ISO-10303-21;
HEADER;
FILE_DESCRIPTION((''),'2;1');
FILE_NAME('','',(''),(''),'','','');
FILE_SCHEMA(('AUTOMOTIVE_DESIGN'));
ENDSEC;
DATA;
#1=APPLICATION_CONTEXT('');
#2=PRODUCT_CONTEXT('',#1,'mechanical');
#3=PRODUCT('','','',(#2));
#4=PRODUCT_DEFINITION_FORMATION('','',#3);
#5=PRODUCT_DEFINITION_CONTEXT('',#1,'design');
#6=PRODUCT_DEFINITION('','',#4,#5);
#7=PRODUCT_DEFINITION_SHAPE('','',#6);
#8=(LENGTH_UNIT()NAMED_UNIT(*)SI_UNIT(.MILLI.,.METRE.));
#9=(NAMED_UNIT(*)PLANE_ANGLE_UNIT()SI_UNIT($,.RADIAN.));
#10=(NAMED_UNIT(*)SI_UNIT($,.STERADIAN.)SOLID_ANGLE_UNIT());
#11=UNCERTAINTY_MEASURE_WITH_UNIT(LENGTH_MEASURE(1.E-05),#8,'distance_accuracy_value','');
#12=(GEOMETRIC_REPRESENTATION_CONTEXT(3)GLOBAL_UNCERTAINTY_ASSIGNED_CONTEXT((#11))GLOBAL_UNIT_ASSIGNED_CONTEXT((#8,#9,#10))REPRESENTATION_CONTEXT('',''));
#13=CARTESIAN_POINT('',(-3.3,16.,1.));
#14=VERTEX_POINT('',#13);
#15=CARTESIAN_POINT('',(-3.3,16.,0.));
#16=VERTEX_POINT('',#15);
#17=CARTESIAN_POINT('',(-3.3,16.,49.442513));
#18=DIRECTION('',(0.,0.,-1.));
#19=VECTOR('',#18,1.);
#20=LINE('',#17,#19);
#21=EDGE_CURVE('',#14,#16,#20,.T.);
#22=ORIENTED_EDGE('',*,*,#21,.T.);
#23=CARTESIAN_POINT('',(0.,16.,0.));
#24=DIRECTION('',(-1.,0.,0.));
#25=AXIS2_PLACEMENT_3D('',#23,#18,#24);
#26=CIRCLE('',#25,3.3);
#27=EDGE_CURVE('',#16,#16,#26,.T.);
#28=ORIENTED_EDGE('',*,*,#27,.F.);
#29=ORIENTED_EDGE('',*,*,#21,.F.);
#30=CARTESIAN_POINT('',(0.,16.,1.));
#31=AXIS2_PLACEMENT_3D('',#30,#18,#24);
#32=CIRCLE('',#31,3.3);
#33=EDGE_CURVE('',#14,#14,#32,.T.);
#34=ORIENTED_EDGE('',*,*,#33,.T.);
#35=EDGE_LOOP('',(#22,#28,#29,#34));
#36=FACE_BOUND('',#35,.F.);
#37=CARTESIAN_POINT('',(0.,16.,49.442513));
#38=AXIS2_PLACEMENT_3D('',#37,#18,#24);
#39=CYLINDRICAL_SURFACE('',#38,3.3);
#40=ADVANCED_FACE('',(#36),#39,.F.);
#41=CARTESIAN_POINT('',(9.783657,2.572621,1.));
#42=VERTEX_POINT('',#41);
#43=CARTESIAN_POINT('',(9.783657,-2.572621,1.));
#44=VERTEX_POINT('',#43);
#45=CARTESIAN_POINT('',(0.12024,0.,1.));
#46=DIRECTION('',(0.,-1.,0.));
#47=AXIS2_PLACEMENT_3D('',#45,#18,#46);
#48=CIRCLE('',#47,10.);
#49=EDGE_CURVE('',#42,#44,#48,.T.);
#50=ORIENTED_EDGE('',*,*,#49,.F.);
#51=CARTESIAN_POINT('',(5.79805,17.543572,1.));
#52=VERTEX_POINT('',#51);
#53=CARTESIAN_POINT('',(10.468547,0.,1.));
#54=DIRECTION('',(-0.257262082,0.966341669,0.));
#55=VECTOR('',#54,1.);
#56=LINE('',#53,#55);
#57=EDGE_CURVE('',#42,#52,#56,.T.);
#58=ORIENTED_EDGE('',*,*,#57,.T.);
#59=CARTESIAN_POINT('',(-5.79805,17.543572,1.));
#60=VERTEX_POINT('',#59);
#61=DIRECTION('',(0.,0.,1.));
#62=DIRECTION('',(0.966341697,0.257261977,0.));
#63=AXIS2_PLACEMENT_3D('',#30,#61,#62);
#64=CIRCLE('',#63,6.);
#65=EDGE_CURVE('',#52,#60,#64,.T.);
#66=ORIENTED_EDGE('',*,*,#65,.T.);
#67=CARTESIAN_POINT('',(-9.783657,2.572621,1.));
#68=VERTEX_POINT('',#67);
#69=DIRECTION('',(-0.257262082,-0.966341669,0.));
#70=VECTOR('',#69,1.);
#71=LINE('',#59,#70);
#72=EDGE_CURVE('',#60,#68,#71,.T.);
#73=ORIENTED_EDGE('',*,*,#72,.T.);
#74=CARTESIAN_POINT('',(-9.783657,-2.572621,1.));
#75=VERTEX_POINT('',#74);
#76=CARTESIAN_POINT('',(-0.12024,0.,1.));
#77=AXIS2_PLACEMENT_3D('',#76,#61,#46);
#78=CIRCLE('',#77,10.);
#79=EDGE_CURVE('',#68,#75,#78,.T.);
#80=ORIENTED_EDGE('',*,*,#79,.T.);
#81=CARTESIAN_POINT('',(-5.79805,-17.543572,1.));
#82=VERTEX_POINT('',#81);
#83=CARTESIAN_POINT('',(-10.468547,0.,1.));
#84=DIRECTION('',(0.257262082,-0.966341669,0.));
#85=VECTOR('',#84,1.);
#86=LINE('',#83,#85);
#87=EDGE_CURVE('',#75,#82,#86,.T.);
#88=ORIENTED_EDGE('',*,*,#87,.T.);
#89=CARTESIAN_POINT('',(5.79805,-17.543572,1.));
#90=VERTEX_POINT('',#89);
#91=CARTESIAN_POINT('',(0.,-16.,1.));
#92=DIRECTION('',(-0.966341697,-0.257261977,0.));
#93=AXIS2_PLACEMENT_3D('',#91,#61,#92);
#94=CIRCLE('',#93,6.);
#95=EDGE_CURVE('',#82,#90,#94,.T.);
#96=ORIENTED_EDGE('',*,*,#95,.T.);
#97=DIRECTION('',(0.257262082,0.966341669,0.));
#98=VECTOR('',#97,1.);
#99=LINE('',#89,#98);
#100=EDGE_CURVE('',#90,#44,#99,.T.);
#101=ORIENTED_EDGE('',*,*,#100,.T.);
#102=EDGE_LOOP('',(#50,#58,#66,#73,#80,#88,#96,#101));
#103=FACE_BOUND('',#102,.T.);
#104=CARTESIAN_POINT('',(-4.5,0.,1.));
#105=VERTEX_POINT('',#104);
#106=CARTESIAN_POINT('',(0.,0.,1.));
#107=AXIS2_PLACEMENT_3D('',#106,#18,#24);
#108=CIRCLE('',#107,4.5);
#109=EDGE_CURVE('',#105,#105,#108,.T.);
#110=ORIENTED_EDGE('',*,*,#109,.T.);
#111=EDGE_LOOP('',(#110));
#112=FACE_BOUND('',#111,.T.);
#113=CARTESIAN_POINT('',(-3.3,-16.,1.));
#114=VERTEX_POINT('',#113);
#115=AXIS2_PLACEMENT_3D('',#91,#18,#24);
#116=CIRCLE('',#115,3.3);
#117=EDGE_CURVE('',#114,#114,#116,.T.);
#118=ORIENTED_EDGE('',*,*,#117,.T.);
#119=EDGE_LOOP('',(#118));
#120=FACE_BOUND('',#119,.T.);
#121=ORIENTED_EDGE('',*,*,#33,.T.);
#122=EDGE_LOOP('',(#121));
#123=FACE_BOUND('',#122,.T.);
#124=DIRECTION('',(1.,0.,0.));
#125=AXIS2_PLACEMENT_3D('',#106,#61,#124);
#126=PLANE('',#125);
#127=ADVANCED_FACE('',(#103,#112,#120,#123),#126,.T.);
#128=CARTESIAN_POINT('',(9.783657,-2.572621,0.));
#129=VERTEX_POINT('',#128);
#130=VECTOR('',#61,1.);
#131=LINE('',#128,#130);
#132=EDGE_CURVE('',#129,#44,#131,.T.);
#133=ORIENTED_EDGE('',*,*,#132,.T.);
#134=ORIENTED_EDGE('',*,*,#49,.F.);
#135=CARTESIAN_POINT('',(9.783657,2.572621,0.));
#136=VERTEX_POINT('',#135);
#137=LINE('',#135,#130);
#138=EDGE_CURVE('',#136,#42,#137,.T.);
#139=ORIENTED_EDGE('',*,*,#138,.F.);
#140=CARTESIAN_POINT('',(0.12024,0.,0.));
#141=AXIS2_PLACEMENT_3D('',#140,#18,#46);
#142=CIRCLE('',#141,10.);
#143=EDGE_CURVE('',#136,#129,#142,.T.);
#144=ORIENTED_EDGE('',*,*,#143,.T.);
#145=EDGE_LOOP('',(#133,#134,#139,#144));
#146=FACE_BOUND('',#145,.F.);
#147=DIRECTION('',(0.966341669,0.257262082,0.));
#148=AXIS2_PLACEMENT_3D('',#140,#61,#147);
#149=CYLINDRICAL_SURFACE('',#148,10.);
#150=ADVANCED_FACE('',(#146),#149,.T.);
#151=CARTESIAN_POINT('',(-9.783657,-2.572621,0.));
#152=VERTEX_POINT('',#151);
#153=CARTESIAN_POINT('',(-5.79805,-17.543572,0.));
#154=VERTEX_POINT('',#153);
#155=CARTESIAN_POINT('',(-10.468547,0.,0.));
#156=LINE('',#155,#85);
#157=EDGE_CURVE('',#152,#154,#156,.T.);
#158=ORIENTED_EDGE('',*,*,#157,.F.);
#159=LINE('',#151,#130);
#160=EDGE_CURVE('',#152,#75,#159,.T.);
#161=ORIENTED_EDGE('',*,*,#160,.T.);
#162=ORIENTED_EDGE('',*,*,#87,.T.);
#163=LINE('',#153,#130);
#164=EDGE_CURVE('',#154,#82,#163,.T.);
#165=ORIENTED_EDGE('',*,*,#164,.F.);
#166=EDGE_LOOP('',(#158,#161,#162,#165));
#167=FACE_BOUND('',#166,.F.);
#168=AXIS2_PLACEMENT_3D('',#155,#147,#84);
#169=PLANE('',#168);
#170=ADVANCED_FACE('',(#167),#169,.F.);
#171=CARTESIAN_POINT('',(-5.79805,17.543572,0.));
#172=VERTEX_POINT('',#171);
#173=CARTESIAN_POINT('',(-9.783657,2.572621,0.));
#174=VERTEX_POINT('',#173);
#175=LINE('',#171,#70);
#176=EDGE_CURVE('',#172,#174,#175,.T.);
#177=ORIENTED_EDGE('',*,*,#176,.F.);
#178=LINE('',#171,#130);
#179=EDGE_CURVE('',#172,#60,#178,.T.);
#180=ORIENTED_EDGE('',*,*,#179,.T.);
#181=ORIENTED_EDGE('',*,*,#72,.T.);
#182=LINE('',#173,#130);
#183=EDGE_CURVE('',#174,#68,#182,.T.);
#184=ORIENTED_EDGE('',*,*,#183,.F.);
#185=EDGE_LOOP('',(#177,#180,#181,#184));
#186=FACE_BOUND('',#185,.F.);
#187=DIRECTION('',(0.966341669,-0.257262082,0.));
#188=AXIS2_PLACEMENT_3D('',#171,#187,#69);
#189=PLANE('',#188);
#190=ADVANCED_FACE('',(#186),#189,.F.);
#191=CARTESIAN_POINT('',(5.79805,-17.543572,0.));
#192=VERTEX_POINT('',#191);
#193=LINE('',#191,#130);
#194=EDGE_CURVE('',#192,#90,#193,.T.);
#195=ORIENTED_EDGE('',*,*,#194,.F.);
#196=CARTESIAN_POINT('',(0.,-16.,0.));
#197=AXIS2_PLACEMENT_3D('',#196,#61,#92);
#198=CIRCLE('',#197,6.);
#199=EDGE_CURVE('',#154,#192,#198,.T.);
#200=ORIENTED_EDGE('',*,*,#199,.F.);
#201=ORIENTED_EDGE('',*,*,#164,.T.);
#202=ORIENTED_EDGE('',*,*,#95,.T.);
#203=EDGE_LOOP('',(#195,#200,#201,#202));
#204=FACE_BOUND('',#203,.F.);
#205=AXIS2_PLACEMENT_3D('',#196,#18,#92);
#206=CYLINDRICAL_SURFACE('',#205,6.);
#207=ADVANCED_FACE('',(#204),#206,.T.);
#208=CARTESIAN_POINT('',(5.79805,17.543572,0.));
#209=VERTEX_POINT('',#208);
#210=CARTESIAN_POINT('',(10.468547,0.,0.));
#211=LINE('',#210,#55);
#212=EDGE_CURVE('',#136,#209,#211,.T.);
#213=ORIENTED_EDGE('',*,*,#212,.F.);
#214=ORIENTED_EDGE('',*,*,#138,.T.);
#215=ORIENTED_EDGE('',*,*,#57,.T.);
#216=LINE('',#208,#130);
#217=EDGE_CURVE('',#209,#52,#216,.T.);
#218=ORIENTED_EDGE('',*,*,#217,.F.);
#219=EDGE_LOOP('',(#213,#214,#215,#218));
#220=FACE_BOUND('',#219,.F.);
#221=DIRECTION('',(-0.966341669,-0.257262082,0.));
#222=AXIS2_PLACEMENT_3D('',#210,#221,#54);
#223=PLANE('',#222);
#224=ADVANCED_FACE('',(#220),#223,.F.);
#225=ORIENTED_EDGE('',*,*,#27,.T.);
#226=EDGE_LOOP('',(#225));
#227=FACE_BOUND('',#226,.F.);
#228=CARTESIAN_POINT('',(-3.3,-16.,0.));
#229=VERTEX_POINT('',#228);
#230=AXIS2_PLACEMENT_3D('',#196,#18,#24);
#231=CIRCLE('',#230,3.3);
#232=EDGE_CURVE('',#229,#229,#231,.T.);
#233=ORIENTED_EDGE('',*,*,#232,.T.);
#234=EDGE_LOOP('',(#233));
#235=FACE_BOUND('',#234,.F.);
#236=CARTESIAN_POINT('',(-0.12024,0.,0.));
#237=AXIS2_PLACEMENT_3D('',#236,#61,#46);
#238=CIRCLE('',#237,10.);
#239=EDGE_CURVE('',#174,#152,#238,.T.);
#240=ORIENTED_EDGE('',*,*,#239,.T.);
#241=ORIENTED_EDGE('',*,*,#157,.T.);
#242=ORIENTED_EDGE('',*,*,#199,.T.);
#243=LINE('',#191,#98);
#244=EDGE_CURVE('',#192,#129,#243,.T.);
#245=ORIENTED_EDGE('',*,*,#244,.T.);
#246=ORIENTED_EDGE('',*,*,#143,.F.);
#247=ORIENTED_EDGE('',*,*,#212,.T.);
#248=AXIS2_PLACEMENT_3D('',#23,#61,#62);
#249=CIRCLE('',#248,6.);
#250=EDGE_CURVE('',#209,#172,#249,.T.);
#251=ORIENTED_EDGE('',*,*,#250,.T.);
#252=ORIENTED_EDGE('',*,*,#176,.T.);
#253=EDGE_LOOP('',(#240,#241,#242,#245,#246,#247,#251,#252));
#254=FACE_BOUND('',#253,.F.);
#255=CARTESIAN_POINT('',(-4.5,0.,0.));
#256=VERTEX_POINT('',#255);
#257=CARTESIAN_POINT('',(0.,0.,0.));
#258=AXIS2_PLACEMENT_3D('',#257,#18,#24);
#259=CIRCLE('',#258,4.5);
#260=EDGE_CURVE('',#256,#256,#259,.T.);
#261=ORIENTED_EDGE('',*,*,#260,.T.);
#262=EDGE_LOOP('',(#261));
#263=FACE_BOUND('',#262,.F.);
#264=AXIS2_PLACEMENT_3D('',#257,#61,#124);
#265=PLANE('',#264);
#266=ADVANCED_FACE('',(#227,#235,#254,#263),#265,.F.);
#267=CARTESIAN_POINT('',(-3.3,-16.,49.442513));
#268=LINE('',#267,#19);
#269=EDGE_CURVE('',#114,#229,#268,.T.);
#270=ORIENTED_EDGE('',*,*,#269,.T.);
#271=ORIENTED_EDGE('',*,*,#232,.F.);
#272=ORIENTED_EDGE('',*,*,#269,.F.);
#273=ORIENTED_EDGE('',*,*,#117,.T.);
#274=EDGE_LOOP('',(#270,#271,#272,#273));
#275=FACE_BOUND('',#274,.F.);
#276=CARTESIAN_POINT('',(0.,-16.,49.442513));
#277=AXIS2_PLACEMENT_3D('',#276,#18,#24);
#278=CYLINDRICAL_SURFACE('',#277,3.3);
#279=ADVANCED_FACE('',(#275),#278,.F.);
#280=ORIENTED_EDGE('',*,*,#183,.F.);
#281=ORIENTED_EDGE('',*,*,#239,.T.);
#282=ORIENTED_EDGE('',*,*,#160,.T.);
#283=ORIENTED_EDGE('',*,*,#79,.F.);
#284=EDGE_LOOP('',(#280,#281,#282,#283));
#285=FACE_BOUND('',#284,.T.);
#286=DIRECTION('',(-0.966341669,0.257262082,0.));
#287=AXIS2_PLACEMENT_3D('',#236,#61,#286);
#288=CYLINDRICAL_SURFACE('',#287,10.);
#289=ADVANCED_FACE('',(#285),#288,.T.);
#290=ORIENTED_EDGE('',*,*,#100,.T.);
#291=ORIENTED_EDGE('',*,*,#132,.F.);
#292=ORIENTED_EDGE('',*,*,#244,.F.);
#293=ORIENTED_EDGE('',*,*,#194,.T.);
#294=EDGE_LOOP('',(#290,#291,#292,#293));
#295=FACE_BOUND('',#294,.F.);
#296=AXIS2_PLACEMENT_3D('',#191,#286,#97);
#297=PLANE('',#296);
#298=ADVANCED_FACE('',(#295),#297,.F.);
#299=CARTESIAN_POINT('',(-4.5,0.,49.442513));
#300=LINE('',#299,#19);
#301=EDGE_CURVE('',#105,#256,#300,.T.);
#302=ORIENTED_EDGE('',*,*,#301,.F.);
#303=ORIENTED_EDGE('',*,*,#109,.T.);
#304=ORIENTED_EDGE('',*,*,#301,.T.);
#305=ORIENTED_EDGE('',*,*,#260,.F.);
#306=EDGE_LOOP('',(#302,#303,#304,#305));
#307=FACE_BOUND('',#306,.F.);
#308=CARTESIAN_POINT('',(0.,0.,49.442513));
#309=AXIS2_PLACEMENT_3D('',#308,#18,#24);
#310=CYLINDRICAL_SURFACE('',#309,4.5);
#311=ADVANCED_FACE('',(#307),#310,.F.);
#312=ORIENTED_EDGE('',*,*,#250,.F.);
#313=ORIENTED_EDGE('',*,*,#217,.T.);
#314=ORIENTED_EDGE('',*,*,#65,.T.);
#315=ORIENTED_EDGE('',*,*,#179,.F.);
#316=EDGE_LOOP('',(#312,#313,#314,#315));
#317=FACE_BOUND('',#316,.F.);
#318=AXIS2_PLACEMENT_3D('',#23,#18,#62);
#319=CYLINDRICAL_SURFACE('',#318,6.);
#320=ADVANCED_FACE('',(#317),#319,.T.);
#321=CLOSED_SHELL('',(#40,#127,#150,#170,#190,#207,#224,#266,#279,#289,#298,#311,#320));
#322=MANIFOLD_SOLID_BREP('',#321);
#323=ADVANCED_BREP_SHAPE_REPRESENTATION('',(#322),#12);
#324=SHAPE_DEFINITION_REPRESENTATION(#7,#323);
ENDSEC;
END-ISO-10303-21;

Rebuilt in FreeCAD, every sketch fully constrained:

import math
import FreeCAD as App
import Part
import Sketcher
from FreeCAD import Vector
Q = App.Units.Quantity


def edges_at(feature, points):
    """Names of the edges that pass closest to the given points."""
    edges = feature.Shape.Edges
    near = lambda p: min(range(len(edges)), key=lambda i: edges[i].distToShape(Part.Vertex(*p))[0])
    return sorted({f"Edge{near(p) + 1}" for p in points})

doc = App.newDocument("Part")
body = doc.addObject("PartDesign::Body", "Body")

# Sketch on XY plane
sketch1 = body.newObject("Sketcher::SketchObject", "Sketch")
sketch1.AttachmentSupport = (doc.getObject("XY_Plane"), [""])
sketch1.MapMode = "FlatFace"
sketch1.addGeometry(Part.LineSegment(Vector(10.468547, 0, 0), Vector(5.79805, 17.543572, 0)), False)
sketch1.addGeometry(Part.ArcOfCircle(Part.Circle(Vector(0, 16, 0), Vector(0, 0, 1), 6), math.radians(14.907659), math.radians(165.092341)), False)
sketch1.addGeometry(Part.LineSegment(Vector(-5.79805, 17.543572, 0), Vector(-10.468547, 0, 0)), False)
sketch1.addGeometry(Part.LineSegment(Vector(-10.468547, 0, 0), Vector(-5.79805, -17.543572, 0)), False)
sketch1.addGeometry(Part.ArcOfCircle(Part.Circle(Vector(0, -16, 0), Vector(0, 0, 1), 6), math.radians(-165.092341), math.radians(-14.907659)), False)
sketch1.addGeometry(Part.LineSegment(Vector(5.79805, -17.543572, 0), Vector(10.468547, 0, 0)), False)
sketch1.addConstraint(Sketcher.Constraint("Tangent", 0, 2, 1, 1))
sketch1.addConstraint(Sketcher.Constraint("Tangent", 1, 2, 2, 1))
sketch1.addConstraint(Sketcher.Constraint("Coincident", 2, 2, 3, 1))
sketch1.addConstraint(Sketcher.Constraint("Tangent", 3, 2, 4, 1))
sketch1.addConstraint(Sketcher.Constraint("Tangent", 4, 2, 5, 1))
sketch1.addConstraint(Sketcher.Constraint("Coincident", 5, 2, 0, 1))
sketch1.addConstraint(Sketcher.Constraint("Equal", 1, 4))
sketch1.addConstraint(Sketcher.Constraint("Symmetric", 1, 3, 4, 3, -1, 1))
sketch1.addConstraint(Sketcher.Constraint("Symmetric", 2, 2, 5, 2, -1, 1))
sketch1.addConstraint(Sketcher.Constraint("Symmetric", 0, 2, 1, 2, -2))
sketch1.addConstraint(Sketcher.Constraint("Radius", 1, Q("6 mm")))
sketch1.addConstraint(Sketcher.Constraint("DistanceY", -1, 1, 1, 3, Q("16 mm")))
sketch1.addConstraint(Sketcher.Constraint("DistanceX", 1, 2, 0, 2, Q("11.5961 mm")))
pad1 = body.newObject("PartDesign::Pad", "Pad")
pad1.Profile = sketch1
pad1.Length = 1
doc.recompute()

fillet = body.newObject("PartDesign::Fillet", "Fillet")
fillet.Base = (pad1, edges_at(pad1, [(10.469, 0, 0.5), (-10.469, 0, 0.5)]))
fillet.Radius = 10

# Sketch on XY plane
sketch2 = body.newObject("Sketcher::SketchObject", "Sketch001")
sketch2.AttachmentSupport = (doc.getObject("XY_Plane"), [""])
sketch2.MapMode = "FlatFace"
sketch2.AttachmentOffset = App.Placement(Vector(0, 0, 1), App.Rotation())
sketch2.addGeometry(Part.Circle(Vector(0, 0, 0), Vector(0, 0, 1), 4.5), False)
sketch2.addConstraint(Sketcher.Constraint("Coincident", 0, 3, -1, 1))
sketch2.addConstraint(Sketcher.Constraint("Diameter", 0, Q("9 mm")))
doc.recompute()
hole = body.newObject("PartDesign::Hole", "Hole")
hole.Profile = sketch2
hole.ThreadType = "None"
hole.Diameter = 9
hole.DepthType = "ThroughAll"

# Sketch on XY plane
sketch3 = body.newObject("Sketcher::SketchObject", "Sketch002")
sketch3.AttachmentSupport = (doc.getObject("XY_Plane"), [""])
sketch3.MapMode = "FlatFace"
sketch3.AttachmentOffset = App.Placement(Vector(0, 0, 1), App.Rotation())
sketch3.addGeometry(Part.Circle(Vector(0, 16, 0), Vector(0, 0, 1), 3.3), False)
sketch3.addGeometry(Part.Circle(Vector(0, -16, 0), Vector(0, 0, 1), 3.3), False)
sketch3.addConstraint(Sketcher.Constraint("Equal", 0, 1))
sketch3.addConstraint(Sketcher.Constraint("Symmetric", 0, 3, 1, 3, -1, 1))
sketch3.addConstraint(Sketcher.Constraint("PointOnObject", 0, 3, -2))
sketch3.addConstraint(Sketcher.Constraint("Diameter", 0, Q("6.6 mm")))
sketch3.addConstraint(Sketcher.Constraint("DistanceY", -1, 1, 0, 3, Q("16 mm")))
doc.recompute()
hole2 = body.newObject("PartDesign::Hole", "Hole001")
hole2.Profile = sketch3
hole2.ThreadType = "None"
hole2.Diameter = 6.6
hole2.DepthType = "ThroughAll"

doc.recompute()
